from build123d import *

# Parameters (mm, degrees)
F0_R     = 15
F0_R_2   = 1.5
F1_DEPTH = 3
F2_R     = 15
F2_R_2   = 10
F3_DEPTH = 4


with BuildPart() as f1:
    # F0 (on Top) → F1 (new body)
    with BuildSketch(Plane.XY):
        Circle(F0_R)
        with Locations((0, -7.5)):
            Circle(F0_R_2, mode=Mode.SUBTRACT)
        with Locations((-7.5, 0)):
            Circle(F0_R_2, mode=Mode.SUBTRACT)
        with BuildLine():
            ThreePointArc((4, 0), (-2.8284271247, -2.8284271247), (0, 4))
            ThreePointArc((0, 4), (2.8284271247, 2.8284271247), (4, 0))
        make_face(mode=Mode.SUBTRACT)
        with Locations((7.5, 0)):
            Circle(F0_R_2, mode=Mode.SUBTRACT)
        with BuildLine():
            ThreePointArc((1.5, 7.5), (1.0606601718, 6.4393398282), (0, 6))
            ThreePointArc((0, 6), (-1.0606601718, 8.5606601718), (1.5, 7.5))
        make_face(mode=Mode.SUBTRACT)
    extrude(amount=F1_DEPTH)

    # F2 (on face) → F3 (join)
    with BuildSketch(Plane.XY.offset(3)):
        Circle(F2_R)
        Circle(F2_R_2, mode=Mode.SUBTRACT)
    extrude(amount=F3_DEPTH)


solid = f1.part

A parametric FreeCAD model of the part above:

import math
import FreeCAD as App
import Part
import Sketcher
from FreeCAD import Vector

doc = App.newDocument("Part")
body = doc.addObject("PartDesign::Body", "Body")

sketch1 = body.newObject("Sketcher::SketchObject", "Sketch")
sketch1.AttachmentSupport = (doc.getObject("XY_Plane"), [""])
sketch1.MapMode = "FlatFace"
sketch1.addGeometry([
    Part.Circle(Vector(0, 0, 0), Vector(0, 0, 1), 15),
    Part.Circle(Vector(-7.5, 0, 0), Vector(0, 0, 1), 1.5),
    Part.Circle(Vector(0, -7.5, 0), Vector(0, 0, 1), 1.5),
    Part.Circle(Vector(7.5, 0, 0), Vector(0, 0, 1), 1.5),
    Part.ArcOfCircle(Part.Circle(Vector(0, 7.5, 0), Vector(0, 0, 1), 1.5), math.radians(0), math.radians(270)),
    Part.ArcOfCircle(Part.Circle(Vector(0, 7.5, 0), Vector(0, 0, 1), 1.5), math.radians(-90), math.radians(0)),
    Part.ArcOfCircle(Part.Circle(Vector(0, 0, 0), Vector(0, 0, 1), 4), math.radians(0), math.radians(90)),
    Part.ArcOfCircle(Part.Circle(Vector(0, 0, 0), Vector(0, 0, 1), 4), math.radians(90), math.radians(360)),
], False)
sketch1.addConstraint([
    Sketcher.Constraint("Tangent", 4, 1, 5, 2),
    Sketcher.Constraint("Coincident", 5, 1, 4, 2),
    Sketcher.Constraint("Tangent", 6, 1, 7, 2),
    Sketcher.Constraint("Coincident", 7, 1, 6, 2),
    Sketcher.Constraint("Coincident", 0, 3, -1, 1),
    Sketcher.Constraint("Coincident", 6, 3, -1, 1),
    Sketcher.Constraint("Equal", 1, 2),
    Sketcher.Constraint("Equal", 2, 3),
    Sketcher.Constraint("Equal", 3, 4),
    Sketcher.Constraint("Symmetric", 1, 3, 3, 3, -1, 1),
    Sketcher.Constraint("Symmetric", 2, 3, 4, 3, -1, 1),
    Sketcher.Constraint("PointOnObject", 1, 3, -1),
    Sketcher.Constraint("PointOnObject", 2, 3, -2),
    Sketcher.Constraint("PointOnObject", 5, 1, -2),
    Sketcher.Constraint("PointOnObject", 6, 1, -1),
    Sketcher.Constraint("PointOnObject", 7, 1, -2),
    Sketcher.Constraint("Horizontal", 5, 3, 4, 1),
    Sketcher.Constraint("Diameter", 0, 30.0),
    Sketcher.Constraint("Diameter", 1, 3.0),
    Sketcher.Constraint("Radius", 6, 4.0),
    Sketcher.Constraint("DistanceY", -1, 1, 5, 1, 6.0),
    Sketcher.Constraint("DistanceX", 1, 3, 3, 3, 15.0),
])
pad1 = body.newObject("PartDesign::Pad", "Pad")
pad1.Profile = sketch1
pad1.Length = 3

sketch2 = body.newObject("Sketcher::SketchObject", "Sketch001")
sketch2.AttachmentSupport = (doc.getObject("XY_Plane"), [""])
sketch2.MapMode = "FlatFace"
sketch2.AttachmentOffset = App.Placement(Vector(0, 0, 3), App.Rotation())
sketch2.addGeometry([
    Part.Circle(Vector(0, 0, 0), Vector(0, 0, 1), 15),
    Part.Circle(Vector(0, 0, 0), Vector(0, 0, 1), 10),
], False)
sketch2.addConstraint([
    Sketcher.Constraint("Coincident", 0, 3, -1, 1),
    Sketcher.Constraint("Coincident", 1, 3, -1, 1),
    Sketcher.Constraint("Diameter", 0, 30.0),
    Sketcher.Constraint("Diameter", 1, 20.0),
])
pad2 = body.newObject("PartDesign::Pad", "Pad001")
pad2.Profile = sketch2
pad2.Length = 4

doc.recompute()
